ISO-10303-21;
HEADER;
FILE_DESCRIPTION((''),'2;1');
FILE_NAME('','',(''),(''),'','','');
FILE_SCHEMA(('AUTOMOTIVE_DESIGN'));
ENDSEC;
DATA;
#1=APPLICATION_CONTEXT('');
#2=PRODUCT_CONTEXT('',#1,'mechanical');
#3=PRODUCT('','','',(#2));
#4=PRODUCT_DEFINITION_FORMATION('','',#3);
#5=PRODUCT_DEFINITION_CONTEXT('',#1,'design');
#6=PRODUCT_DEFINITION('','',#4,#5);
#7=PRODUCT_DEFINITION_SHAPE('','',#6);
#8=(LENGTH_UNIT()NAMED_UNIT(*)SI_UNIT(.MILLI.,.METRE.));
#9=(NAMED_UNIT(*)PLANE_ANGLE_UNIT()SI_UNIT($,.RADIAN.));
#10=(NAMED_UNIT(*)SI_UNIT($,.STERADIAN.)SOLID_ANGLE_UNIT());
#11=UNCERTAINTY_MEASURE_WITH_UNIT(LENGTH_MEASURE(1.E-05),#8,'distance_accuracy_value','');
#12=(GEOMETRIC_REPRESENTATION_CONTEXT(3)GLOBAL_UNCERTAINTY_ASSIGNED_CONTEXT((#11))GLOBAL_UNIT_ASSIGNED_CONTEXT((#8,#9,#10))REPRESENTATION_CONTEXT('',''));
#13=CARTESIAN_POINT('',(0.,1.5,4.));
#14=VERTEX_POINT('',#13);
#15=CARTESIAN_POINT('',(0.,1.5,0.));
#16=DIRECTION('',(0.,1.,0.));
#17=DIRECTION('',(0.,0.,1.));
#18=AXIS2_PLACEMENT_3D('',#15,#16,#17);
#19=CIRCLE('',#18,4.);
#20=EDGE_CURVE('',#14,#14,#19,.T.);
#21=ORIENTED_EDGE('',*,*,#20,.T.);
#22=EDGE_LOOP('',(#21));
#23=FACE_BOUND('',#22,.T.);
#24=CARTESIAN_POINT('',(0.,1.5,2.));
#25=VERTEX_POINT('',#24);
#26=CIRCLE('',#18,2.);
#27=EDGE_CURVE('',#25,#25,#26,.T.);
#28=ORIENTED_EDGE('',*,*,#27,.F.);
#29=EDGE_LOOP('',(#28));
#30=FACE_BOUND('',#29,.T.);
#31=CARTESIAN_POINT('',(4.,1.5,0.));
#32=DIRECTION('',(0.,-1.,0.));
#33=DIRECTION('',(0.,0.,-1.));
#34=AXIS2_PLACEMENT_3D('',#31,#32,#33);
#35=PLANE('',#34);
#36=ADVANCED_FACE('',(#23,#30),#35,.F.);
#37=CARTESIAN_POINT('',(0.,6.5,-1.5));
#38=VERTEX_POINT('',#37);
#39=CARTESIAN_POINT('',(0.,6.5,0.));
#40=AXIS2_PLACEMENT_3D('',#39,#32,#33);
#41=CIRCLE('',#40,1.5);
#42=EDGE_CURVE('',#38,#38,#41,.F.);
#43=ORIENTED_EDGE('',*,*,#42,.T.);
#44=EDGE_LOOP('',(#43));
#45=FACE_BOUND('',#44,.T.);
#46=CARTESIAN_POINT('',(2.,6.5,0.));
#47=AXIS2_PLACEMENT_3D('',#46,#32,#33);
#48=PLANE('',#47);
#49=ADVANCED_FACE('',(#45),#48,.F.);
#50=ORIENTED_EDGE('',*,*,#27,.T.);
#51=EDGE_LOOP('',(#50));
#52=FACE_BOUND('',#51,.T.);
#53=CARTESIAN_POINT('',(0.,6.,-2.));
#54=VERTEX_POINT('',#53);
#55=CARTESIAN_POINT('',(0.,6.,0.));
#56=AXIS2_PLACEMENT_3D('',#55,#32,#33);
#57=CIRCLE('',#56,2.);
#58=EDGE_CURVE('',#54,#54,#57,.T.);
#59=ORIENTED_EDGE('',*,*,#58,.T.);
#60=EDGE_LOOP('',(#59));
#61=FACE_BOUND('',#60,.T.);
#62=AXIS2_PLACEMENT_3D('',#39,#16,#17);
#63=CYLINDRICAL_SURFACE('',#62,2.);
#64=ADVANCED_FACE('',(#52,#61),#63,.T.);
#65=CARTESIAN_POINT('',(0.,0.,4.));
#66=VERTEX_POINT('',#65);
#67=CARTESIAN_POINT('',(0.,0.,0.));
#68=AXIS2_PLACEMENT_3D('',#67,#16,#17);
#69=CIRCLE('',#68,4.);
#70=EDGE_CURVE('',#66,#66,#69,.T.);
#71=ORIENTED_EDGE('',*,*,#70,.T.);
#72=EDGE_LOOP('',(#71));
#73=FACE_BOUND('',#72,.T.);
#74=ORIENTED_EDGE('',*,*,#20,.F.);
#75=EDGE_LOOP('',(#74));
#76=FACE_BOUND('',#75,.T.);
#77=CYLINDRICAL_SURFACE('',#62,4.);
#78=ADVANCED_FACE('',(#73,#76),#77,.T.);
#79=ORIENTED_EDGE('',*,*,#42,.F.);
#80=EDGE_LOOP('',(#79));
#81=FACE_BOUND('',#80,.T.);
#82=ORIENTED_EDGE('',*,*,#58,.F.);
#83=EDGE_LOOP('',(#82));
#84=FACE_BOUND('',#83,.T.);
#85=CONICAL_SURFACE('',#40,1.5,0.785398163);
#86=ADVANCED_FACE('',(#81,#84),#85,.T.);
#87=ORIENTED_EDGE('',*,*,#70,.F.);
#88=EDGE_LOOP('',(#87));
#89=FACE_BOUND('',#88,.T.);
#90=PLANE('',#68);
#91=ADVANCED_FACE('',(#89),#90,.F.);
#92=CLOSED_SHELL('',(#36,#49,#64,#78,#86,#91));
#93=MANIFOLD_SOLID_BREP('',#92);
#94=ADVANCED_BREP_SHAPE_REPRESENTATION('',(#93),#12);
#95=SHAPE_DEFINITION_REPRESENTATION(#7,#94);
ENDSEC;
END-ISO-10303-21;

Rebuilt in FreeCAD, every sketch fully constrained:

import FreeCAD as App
import Part
import Sketcher

V = App.Vector


def edges_at(feature, points):
    """Names of the edges that pass closest to the given points."""
    edges = feature.Shape.Edges
    near = lambda p: min(range(len(edges)), key=lambda i: edges[i].distToShape(Part.Vertex(*p))[0])
    return sorted({f"Edge{near(p) + 1}" for p in points})

doc = App.newDocument("Part")
body = doc.addObject("PartDesign::Body", "Body")

# Sketch on XY plane
sketch1 = body.newObject("Sketcher::SketchObject", "Sketch")
sketch1.AttachmentSupport = (doc.getObject("XY_Plane"), [""])
sketch1.MapMode = "FlatFace"
sketch1.addGeometry(Part.LineSegment(V(0, 0, 0), V(4, 0, 0)), False)
sketch1.addGeometry(Part.LineSegment(V(4, 0, 0), V(4, 1.5, 0)), False)
sketch1.addGeometry(Part.LineSegment(V(4, 1.5, 0), V(2, 1.5, 0)), False)
sketch1.addGeometry(Part.LineSegment(V(2, 1.5, 0), V(2, 6.5, 0)), False)
sketch1.addGeometry(Part.LineSegment(V(2, 6.5, 0), V(0, 6.5, 0)), False)
sketch1.addGeometry(Part.LineSegment(V(0, 6.5, 0), V(0, 0, 0)), False)
sketch1.addConstraint(Sketcher.Constraint("Coincident", 0, 2, 1, 1))
sketch1.addConstraint(Sketcher.Constraint("Coincident", 1, 2, 2, 1))
sketch1.addConstraint(Sketcher.Constraint("Coincident", 2, 2, 3, 1))
sketch1.addConstraint(Sketcher.Constraint("Coincident", 3, 2, 4, 1))
sketch1.addConstraint(Sketcher.Constraint("Coincident", 4, 2, 5, 1))
sketch1.addConstraint(Sketcher.Constraint("Coincident", 5, 2, 0, 1))
sketch1.addConstraint(Sketcher.Constraint("Horizontal", 0))
sketch1.addConstraint(Sketcher.Constraint("Vertical", 1))
sketch1.addConstraint(Sketcher.Constraint("Horizontal", 2))
sketch1.addConstraint(Sketcher.Constraint("Vertical", 3))
sketch1.addConstraint(Sketcher.Constraint("Horizontal", 4))
sketch1.addConstraint(Sketcher.Constraint("Vertical", 5))
sketch1.addConstraint(Sketcher.Constraint("Coincident", 5, 2, -1, 1))
sketch1.addConstraint(Sketcher.Constraint("Equal", 2, 4))
sketch1.addConstraint(Sketcher.Constraint("DistanceX", 0, 1, 0, 2, 4.0))
sketch1.addConstraint(Sketcher.Constraint("DistanceY", 3, 1, 3, 2, 5.0))
sketch1.addConstraint(Sketcher.Constraint("DistanceY", 1, 1, 1, 2, 1.5))
revolution = body.newObject("PartDesign::Revolution", "Revolution")
revolution.Profile = sketch1
revolution.ReferenceAxis = (sketch1, ["V_Axis"])
revolution.Angle = 360
doc.recompute()

chamfer = body.newObject("PartDesign::Chamfer", "Chamfer")
chamfer.Base = (revolution, edges_at(revolution, [(0, 6.5, -2)]))
chamfer.Size = 0.5

doc.recompute()
